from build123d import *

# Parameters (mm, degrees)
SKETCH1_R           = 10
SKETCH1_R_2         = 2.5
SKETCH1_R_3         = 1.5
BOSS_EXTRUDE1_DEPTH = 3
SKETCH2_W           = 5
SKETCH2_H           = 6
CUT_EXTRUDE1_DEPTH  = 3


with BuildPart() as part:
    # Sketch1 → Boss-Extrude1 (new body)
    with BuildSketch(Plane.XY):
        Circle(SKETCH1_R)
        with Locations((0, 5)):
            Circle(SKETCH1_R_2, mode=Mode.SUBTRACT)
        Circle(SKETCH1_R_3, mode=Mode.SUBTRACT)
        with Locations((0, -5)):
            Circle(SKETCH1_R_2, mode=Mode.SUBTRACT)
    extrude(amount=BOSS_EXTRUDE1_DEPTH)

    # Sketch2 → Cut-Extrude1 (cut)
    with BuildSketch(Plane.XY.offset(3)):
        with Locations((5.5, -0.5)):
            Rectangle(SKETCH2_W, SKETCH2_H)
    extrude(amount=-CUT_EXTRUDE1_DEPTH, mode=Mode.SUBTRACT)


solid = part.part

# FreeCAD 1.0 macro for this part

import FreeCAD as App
import Part
import Sketcher

doc = App.newDocument("Part")
body = doc.addObject("PartDesign::Body", "Body")

# Sketch on XY plane
sketch1 = body.newObject("Sketcher::SketchObject", "Sketch")
sketch1.AttachmentSupport = (doc.getObject("XY_Plane"), [""])
sketch1.MapMode = "FlatFace"
sketch1.addGeometry([
    Part.Circle(App.Vector(0, 0, 0), App.Vector(0, 0, 1), 10),
    Part.Circle(App.Vector(0, -5, 0), App.Vector(0, 0, 1), 2.5),
    Part.Circle(App.Vector(0, 0, 0), App.Vector(0, 0, 1), 1.5),
    Part.Circle(App.Vector(0, 5, 0), App.Vector(0, 0, 1), 2.5),
], False)
sketch1.addConstraint([
    Sketcher.Constraint("Coincident", 0, 3, -1, 1),
    Sketcher.Constraint("Coincident", 2, 3, -1, 1),
    Sketcher.Constraint("Equal", 1, 3),
    Sketcher.Constraint("Symmetric", 1, 3, 3, 3, -1, 1),
    Sketcher.Constraint("PointOnObject", 1, 3, -2),
    Sketcher.Constraint("Diameter", 0, 20.0),
    Sketcher.Constraint("Diameter", 1, 5.0),
    Sketcher.Constraint("Diameter", 2, 3.0),
    Sketcher.Constraint("DistanceY", 1, 3, -1, 1, 5.0),
])
pad1 = body.newObject("PartDesign::Pad", "Pad")
pad1.Profile = sketch1
pad1.Length = 3

# Sketch on XY plane
sketch2 = body.newObject("Sketcher::SketchObject", "Sketch001")
sketch2.AttachmentSupport = (doc.getObject("XY_Plane"), [""])
sketch2.MapMode = "FlatFace"
sketch2.AttachmentOffset = App.Placement(App.Vector(0, 0, 3), App.Rotation())
sketch2.addGeometry([
    Part.LineSegment(App.Vector(3, 2.5, 0), App.Vector(3, -3.5, 0)),
    Part.LineSegment(App.Vector(3, -3.5, 0), App.Vector(8, -3.5, 0)),
    Part.LineSegment(App.Vector(8, -3.5, 0), App.Vector(8, 2.5, 0)),
    Part.LineSegment(App.Vector(8, 2.5, 0), App.Vector(3, 2.5, 0)),
], False)
sketch2.addConstraint([
    Sketcher.Constraint("Coincident", 0, 2, 1, 1),
    Sketcher.Constraint("Coincident", 1, 2, 2, 1),
    Sketcher.Constraint("Coincident", 2, 2, 3, 1),
    Sketcher.Constraint("Coincident", 3, 2, 0, 1),
    Sketcher.Constraint("Vertical", 0),
    Sketcher.Constraint("Horizontal", 1),
    Sketcher.Constraint("Vertical", 2),
    Sketcher.Constraint("Horizontal", 3),
    Sketcher.Constraint("DistanceX", 1, 1, 1, 2, 5.0),
    Sketcher.Constraint("DistanceY", 0, 2, 0, 1, 6.0),
    Sketcher.Constraint("DistanceX", -1, 1, 0, 2, 3.0),
    Sketcher.Constraint("DistanceY", 0, 2, -1, 1, 3.5),
])
pocket1 = body.newObject("PartDesign::Pocket", "Pocket")
pocket1.Profile = sketch2
pocket1.Length = 3

doc.recompute()
